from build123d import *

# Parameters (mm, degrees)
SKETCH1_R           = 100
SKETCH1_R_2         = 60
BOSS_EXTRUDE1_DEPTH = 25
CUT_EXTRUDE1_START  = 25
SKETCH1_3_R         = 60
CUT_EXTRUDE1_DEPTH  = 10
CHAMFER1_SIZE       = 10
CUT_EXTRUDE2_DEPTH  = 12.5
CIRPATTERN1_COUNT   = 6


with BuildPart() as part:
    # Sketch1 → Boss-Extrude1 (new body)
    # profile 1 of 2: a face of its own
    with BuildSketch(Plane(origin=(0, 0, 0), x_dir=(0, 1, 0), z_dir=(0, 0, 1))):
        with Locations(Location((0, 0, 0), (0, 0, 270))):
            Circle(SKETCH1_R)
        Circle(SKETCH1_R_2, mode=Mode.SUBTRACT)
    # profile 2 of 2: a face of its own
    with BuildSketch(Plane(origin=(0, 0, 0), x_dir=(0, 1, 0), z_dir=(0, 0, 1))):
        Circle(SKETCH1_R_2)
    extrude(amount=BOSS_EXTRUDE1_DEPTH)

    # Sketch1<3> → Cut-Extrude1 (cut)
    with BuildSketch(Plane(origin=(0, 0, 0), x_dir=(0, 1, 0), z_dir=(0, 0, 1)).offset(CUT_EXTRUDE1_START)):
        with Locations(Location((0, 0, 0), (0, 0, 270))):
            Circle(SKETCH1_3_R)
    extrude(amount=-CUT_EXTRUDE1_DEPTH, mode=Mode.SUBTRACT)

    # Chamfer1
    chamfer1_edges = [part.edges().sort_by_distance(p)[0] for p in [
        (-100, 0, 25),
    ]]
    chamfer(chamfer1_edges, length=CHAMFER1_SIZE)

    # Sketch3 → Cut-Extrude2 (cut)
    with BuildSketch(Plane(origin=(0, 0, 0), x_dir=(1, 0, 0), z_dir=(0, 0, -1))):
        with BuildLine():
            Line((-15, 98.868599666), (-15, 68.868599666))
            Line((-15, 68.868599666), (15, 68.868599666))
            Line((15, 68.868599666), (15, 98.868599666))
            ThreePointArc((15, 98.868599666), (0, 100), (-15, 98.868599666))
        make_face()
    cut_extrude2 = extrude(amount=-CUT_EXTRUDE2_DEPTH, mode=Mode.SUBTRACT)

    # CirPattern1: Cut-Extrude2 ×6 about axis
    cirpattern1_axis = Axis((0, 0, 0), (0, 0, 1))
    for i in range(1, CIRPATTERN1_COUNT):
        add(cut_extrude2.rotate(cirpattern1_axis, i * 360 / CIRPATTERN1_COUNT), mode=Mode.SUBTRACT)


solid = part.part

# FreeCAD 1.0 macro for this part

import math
import FreeCAD as App
import Part
import Sketcher
from FreeCAD import Vector


def edges_at(feature, points):
    """Names of the edges that pass closest to the given points."""
    edges = feature.Shape.Edges
    near = lambda p: min(range(len(edges)), key=lambda i: edges[i].distToShape(Part.Vertex(*p))[0])
    return sorted({f"Edge{near(p) + 1}" for p in points})

doc = App.newDocument("Part")
body = doc.addObject("PartDesign::Body", "Body")

# Sketch on XY plane
sketch1 = body.newObject("Sketcher::SketchObject", "Sketch")
sketch1.AttachmentSupport = (doc.getObject("XY_Plane"), [""])
sketch1.MapMode = "FlatFace"
sketch1.addGeometry(Part.Circle(Vector(0, 0, 0), Vector(0, 0, 1), 100), False)
sketch1.addConstraint([
    Sketcher.Constraint("Coincident", 0, 3, -1, 1),
    Sketcher.Constraint("Diameter", 0, 200.0),
])
pad1 = body.newObject("PartDesign::Pad", "Pad")
pad1.Profile = sketch1
pad1.Length = 25

# Sketch on XY plane
sketch2 = body.newObject("Sketcher::SketchObject", "Sketch001")
sketch2.AttachmentSupport = (doc.getObject("XY_Plane"), [""])
sketch2.MapMode = "FlatFace"
sketch2.AttachmentOffset = App.Placement(Vector(0, 0, 25), App.Rotation())
sketch2.addGeometry(Part.Circle(Vector(0, 0, 0), Vector(0, 0, 1), 60), False)
sketch2.addConstraint([
    Sketcher.Constraint("Coincident", 0, 3, -1, 1),
    Sketcher.Constraint("Diameter", 0, 120.0),
])
pocket1 = body.newObject("PartDesign::Pocket", "Pocket")
pocket1.Profile = sketch2
pocket1.Length = 10
doc.recompute()

chamfer = body.newObject("PartDesign::Chamfer", "Chamfer")
chamfer.Base = (pocket1, edges_at(pocket1, [(-100, 0, 25)]))
chamfer.Size = 10

# Sketch on XY plane
sketch3 = body.newObject("Sketcher::SketchObject", "Sketch002")
sketch3.AttachmentSupport = (doc.getObject("XY_Plane"), [""])
sketch3.MapMode = "FlatFace"
sketch3.addGeometry([
    Part.LineSegment(Vector(-15, -98.8686, 0), Vector(-15, -68.8686, 0)),
    Part.LineSegment(Vector(-15, -68.8686, 0), Vector(15, -68.8686, 0)),
    Part.LineSegment(Vector(15, -68.8686, 0), Vector(15, -98.8686, 0)),
    Part.ArcOfCircle(Part.Circle(Vector(0, 0, 0), Vector(0, 0, 1), 100), math.radians(-98.626927), math.radians(-81.373073)),
], False)
sketch3.addConstraint([
    Sketcher.Constraint("Coincident", 0, 2, 1, 1),
    Sketcher.Constraint("Coincident", 1, 2, 2, 1),
    Sketcher.Constraint("Coincident", 2, 2, 3, 2),
    Sketcher.Constraint("Coincident", 3, 1, 0, 1),
    Sketcher.Constraint("Vertical", 0),
    Sketcher.Constraint("Horizontal", 1),
    Sketcher.Constraint("Vertical", 2),
    Sketcher.Constraint("Coincident", 3, 3, -1, 1),
    Sketcher.Constraint("Horizontal", 2, 2, 3, 1),
    Sketcher.Constraint("Equal", 1, 0),
    Sketcher.Constraint("Radius", 3, 100.0),
    Sketcher.Constraint("DistanceX", 1, 1, 1, 2, 30.0),
])
pocket2 = body.newObject("PartDesign::Pocket", "Pocket001")
pocket2.Profile = sketch3
pocket2.Length = 12.5
pocket2.Reversed = True
doc.recompute()

polarpattern = body.newObject("PartDesign::PolarPattern", "PolarPattern")
polarpattern.Originals = [pocket2]
polarpattern.Axis = (doc.getObject("Z_Axis"), [""])
polarpattern.Angle = 360
polarpattern.Occurrences = 6
body.Tip = polarpattern

doc.recompute()
